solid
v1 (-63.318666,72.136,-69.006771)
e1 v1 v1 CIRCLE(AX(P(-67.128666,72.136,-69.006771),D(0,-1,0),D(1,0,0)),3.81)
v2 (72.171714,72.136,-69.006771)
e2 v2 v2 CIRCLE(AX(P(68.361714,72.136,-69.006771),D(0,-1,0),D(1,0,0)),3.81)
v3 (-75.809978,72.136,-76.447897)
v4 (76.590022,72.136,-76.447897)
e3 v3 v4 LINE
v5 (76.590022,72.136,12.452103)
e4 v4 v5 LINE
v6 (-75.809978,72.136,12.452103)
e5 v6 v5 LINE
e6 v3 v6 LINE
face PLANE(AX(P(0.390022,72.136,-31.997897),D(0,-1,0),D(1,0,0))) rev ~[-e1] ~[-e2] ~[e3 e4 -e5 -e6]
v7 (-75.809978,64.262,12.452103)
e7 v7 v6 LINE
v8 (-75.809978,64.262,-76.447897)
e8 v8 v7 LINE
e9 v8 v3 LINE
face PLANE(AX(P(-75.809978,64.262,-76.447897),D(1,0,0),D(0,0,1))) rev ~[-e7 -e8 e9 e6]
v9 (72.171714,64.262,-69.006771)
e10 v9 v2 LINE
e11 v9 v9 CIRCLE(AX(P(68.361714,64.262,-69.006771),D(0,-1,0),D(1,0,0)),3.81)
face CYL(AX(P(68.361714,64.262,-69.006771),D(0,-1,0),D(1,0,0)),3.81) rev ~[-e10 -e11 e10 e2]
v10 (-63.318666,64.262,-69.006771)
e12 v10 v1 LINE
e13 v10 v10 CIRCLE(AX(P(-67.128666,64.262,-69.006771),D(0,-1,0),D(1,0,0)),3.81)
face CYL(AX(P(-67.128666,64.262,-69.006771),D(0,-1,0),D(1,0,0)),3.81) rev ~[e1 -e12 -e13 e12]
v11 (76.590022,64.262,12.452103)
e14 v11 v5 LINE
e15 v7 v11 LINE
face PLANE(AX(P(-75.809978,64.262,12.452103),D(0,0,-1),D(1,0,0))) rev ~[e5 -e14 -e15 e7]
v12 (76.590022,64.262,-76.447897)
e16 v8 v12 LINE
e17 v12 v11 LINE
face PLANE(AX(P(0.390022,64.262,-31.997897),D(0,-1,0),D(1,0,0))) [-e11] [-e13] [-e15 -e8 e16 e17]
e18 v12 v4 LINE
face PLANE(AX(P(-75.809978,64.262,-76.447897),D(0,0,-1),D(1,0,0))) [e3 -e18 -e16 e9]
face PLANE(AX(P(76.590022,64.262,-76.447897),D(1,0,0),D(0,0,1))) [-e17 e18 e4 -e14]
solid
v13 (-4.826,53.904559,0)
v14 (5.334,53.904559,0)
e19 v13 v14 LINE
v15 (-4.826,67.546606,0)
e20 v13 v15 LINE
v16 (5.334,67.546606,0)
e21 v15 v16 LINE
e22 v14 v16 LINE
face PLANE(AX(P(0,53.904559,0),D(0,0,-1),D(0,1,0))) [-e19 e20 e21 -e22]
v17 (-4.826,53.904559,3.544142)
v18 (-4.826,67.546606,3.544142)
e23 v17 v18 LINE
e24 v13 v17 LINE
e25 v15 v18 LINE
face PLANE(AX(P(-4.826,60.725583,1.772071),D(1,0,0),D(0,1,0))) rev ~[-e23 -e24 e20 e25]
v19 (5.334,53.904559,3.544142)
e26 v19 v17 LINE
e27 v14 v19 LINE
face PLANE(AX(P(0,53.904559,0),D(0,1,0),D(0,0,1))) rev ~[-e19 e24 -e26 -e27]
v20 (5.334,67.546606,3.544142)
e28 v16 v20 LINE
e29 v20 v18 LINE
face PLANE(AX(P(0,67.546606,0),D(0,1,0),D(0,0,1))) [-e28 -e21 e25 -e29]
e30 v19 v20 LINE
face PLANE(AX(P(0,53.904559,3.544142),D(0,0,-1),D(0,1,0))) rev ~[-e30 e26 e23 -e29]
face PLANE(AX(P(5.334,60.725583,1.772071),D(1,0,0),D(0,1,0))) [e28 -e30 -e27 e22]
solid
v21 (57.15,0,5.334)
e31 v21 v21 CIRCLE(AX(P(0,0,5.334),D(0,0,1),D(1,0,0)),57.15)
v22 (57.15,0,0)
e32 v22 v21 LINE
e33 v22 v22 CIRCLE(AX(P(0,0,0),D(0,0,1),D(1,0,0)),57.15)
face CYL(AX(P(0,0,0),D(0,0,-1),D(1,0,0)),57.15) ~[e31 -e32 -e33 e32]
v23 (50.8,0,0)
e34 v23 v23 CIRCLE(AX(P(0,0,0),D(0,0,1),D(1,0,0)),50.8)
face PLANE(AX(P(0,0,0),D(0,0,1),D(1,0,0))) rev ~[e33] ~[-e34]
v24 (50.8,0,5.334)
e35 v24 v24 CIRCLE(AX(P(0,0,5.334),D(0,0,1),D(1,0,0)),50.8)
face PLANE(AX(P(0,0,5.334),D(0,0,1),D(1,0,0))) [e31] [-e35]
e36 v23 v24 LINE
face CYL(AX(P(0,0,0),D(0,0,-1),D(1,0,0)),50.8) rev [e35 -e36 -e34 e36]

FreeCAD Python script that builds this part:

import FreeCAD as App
import Part
import Sketcher
from FreeCAD import Vector
Q = App.Units.Quantity


def add_polygon(sketch, points):
    """Adds a closed chain of lines whose ends are joined by coincident constraints."""
    first, n = sketch.GeometryCount, len(points)
    for a, b in zip(points, points[1:] + points[:1]):
        sketch.addGeometry(Part.LineSegment(App.Vector(*a, 0), App.Vector(*b, 0)), False)
    for i in range(n):
        sketch.addConstraint(Sketcher.Constraint("Coincident", first + i, 2, first + (i + 1) % n, 1))

doc = App.newDocument("Part")
params = doc.addObject("Spreadsheet::Sheet", "Params")
for row, (alias, value) in enumerate([
    ("sketch1_diameter", "4 in"),
    ("sketch1_diameter2", "4.5 in"),
    ("pad1_length", "0.21 in"),
    ("sketch2_diameter", "0.3 in"),
    ("sketch2_width", "6 in"),
    ("sketch2_height", "3.5 in"),
    ("pad2_length", "0.31 in"),
    ("pad3_length", "0.21 in"),
    ("pad3_length2", "0.19 in"),
], start=1):
    params.set(f"A{row}", alias)
    params.set(f"B{row}", "=" + value)
    params.setAlias(f"B{row}", alias)

body = doc.addObject("PartDesign::Body", "Body")

# Sketch on XY plane
sketch1 = body.newObject("Sketcher::SketchObject", "Sketch")
sketch1.AttachmentSupport = (doc.getObject("XY_Plane"), [""])
sketch1.MapMode = "FlatFace"
sketch1.addGeometry([
    Part.Circle(Vector(0, 0, 0), Vector(0, 0, 1), 57),
    Part.Circle(Vector(0, 0, 0), Vector(0, 0, 1), 51),
], False)
sketch1.addConstraint([
    Sketcher.Constraint("Coincident", 0, 3, -1, 1),
    Sketcher.Constraint("Coincident", 1, 3, -1, 1),
    Sketcher.Constraint("Diameter", 1, Q("4 in")),
    Sketcher.Constraint("Diameter", 0, Q("4.5 in")),
])
sketch1.setExpression("Constraints[2]", "Params.sketch1_diameter")
sketch1.setExpression("Constraints[3]", "Params.sketch1_diameter2")
pad1 = body.newObject("PartDesign::Pad", "Pad")
pad1.Profile = sketch1
pad1.setExpression("Length", "Params.pad1_length")
body2 = doc.addObject("PartDesign::Body", "Body001")

# Sketch on XZ plane
sketch2 = body2.newObject("Sketcher::SketchObject", "Sketch001")
sketch2.AttachmentSupport = (doc.getObject("XZ_Plane001"), [""])
sketch2.MapMode = "FlatFace"
sketch2.AttachmentOffset = App.Placement(Vector(0, 0, -2.53 * 25.4), App.Rotation())
add_polygon(sketch2, [(-75.8, 12.5), (-75.8, -76.4), (76.6, -76.4), (76.6, 12.5)])  # lines 0-3
sketch2.addGeometry(Part.Circle(Vector(-67.1, -69, 0), Vector(0, 0, 1), 3.8), False)  # 4
sketch2.addGeometry(Part.Circle(Vector(68.4, -69, 0), Vector(0, 0, 1), 3.8), False)  # 5
sketch2.addConstraint([
    Sketcher.Constraint("Vertical", 0),
    Sketcher.Constraint("Horizontal", 1),
    Sketcher.Constraint("Vertical", 2),
    Sketcher.Constraint("Horizontal", 3),
    Sketcher.Constraint("Equal", 4, 5),
    Sketcher.Constraint("Horizontal", 4, 3, 5, 3),
    Sketcher.Constraint("Diameter", 4, Q("0.3 in")),
    Sketcher.Constraint("DistanceX", 1, 1, 1, 2, Q("6 in")),
    Sketcher.Constraint("DistanceY", 0, 2, 0, 1, Q("3.5 in")),
    Sketcher.Constraint("DistanceY", 4, 3, -1, 1, Q("69.006771 mm")),
    Sketcher.Constraint("DistanceX", 4, 3, 5, 3, Q("135.49038 mm")),
    Sketcher.Constraint("DistanceX", 4, 3, -1, 1, Q("67.128666 mm")),
    Sketcher.Constraint("DistanceX", 0, 2, -1, 1, Q("75.809978 mm")),
    Sketcher.Constraint("DistanceY", 0, 2, -1, 1, Q("76.447897 mm")),
])
sketch2.setExpression("Constraints[10]", "Params.sketch2_diameter")
sketch2.setExpression("Constraints[11]", "Params.sketch2_width")
sketch2.setExpression("Constraints[12]", "Params.sketch2_height")
pad2 = body2.newObject("PartDesign::Pad", "Pad001")
pad2.Profile = sketch2
pad2.setExpression("Length", "Params.pad2_length")
pad2.Reversed = True
body3 = doc.addObject("PartDesign::Body", "Body002")

# Sketch on YZ plane
sketch3 = body3.newObject("Sketcher::SketchObject", "Sketch002")
sketch3.AttachmentSupport = (doc.getObject("YZ_Plane002"), [""])
sketch3.MapMode = "FlatFace"
add_polygon(sketch3, [(53.9, 3.5), (53.9, 0), (67.5, 0), (67.5, 3.5)])  # lines 0-3
sketch3.addConstraint([
    Sketcher.Constraint("Vertical", 0),
    Sketcher.Constraint("Horizontal", 1),
    Sketcher.Constraint("Vertical", 2),
    Sketcher.Constraint("Horizontal", 3),
    Sketcher.Constraint("PointOnObject", 0, 2, -1),
    Sketcher.Constraint("DistanceY", 0, 2, 0, 1, Q("3.544142 mm")),
    Sketcher.Constraint("DistanceX", 1, 1, 1, 2, Q("13.642047 mm")),
    Sketcher.Constraint("DistanceX", -1, 1, 0, 2, Q("53.904559 mm")),
])
pad3 = body3.newObject("PartDesign::Pad", "Pad002")
pad3.Profile = sketch3
pad3.Type = "TwoLengths"
pad3.setExpression("Length", "Params.pad3_length")
pad3.setExpression("Length2", "Params.pad3_length2")

doc.recompute()
